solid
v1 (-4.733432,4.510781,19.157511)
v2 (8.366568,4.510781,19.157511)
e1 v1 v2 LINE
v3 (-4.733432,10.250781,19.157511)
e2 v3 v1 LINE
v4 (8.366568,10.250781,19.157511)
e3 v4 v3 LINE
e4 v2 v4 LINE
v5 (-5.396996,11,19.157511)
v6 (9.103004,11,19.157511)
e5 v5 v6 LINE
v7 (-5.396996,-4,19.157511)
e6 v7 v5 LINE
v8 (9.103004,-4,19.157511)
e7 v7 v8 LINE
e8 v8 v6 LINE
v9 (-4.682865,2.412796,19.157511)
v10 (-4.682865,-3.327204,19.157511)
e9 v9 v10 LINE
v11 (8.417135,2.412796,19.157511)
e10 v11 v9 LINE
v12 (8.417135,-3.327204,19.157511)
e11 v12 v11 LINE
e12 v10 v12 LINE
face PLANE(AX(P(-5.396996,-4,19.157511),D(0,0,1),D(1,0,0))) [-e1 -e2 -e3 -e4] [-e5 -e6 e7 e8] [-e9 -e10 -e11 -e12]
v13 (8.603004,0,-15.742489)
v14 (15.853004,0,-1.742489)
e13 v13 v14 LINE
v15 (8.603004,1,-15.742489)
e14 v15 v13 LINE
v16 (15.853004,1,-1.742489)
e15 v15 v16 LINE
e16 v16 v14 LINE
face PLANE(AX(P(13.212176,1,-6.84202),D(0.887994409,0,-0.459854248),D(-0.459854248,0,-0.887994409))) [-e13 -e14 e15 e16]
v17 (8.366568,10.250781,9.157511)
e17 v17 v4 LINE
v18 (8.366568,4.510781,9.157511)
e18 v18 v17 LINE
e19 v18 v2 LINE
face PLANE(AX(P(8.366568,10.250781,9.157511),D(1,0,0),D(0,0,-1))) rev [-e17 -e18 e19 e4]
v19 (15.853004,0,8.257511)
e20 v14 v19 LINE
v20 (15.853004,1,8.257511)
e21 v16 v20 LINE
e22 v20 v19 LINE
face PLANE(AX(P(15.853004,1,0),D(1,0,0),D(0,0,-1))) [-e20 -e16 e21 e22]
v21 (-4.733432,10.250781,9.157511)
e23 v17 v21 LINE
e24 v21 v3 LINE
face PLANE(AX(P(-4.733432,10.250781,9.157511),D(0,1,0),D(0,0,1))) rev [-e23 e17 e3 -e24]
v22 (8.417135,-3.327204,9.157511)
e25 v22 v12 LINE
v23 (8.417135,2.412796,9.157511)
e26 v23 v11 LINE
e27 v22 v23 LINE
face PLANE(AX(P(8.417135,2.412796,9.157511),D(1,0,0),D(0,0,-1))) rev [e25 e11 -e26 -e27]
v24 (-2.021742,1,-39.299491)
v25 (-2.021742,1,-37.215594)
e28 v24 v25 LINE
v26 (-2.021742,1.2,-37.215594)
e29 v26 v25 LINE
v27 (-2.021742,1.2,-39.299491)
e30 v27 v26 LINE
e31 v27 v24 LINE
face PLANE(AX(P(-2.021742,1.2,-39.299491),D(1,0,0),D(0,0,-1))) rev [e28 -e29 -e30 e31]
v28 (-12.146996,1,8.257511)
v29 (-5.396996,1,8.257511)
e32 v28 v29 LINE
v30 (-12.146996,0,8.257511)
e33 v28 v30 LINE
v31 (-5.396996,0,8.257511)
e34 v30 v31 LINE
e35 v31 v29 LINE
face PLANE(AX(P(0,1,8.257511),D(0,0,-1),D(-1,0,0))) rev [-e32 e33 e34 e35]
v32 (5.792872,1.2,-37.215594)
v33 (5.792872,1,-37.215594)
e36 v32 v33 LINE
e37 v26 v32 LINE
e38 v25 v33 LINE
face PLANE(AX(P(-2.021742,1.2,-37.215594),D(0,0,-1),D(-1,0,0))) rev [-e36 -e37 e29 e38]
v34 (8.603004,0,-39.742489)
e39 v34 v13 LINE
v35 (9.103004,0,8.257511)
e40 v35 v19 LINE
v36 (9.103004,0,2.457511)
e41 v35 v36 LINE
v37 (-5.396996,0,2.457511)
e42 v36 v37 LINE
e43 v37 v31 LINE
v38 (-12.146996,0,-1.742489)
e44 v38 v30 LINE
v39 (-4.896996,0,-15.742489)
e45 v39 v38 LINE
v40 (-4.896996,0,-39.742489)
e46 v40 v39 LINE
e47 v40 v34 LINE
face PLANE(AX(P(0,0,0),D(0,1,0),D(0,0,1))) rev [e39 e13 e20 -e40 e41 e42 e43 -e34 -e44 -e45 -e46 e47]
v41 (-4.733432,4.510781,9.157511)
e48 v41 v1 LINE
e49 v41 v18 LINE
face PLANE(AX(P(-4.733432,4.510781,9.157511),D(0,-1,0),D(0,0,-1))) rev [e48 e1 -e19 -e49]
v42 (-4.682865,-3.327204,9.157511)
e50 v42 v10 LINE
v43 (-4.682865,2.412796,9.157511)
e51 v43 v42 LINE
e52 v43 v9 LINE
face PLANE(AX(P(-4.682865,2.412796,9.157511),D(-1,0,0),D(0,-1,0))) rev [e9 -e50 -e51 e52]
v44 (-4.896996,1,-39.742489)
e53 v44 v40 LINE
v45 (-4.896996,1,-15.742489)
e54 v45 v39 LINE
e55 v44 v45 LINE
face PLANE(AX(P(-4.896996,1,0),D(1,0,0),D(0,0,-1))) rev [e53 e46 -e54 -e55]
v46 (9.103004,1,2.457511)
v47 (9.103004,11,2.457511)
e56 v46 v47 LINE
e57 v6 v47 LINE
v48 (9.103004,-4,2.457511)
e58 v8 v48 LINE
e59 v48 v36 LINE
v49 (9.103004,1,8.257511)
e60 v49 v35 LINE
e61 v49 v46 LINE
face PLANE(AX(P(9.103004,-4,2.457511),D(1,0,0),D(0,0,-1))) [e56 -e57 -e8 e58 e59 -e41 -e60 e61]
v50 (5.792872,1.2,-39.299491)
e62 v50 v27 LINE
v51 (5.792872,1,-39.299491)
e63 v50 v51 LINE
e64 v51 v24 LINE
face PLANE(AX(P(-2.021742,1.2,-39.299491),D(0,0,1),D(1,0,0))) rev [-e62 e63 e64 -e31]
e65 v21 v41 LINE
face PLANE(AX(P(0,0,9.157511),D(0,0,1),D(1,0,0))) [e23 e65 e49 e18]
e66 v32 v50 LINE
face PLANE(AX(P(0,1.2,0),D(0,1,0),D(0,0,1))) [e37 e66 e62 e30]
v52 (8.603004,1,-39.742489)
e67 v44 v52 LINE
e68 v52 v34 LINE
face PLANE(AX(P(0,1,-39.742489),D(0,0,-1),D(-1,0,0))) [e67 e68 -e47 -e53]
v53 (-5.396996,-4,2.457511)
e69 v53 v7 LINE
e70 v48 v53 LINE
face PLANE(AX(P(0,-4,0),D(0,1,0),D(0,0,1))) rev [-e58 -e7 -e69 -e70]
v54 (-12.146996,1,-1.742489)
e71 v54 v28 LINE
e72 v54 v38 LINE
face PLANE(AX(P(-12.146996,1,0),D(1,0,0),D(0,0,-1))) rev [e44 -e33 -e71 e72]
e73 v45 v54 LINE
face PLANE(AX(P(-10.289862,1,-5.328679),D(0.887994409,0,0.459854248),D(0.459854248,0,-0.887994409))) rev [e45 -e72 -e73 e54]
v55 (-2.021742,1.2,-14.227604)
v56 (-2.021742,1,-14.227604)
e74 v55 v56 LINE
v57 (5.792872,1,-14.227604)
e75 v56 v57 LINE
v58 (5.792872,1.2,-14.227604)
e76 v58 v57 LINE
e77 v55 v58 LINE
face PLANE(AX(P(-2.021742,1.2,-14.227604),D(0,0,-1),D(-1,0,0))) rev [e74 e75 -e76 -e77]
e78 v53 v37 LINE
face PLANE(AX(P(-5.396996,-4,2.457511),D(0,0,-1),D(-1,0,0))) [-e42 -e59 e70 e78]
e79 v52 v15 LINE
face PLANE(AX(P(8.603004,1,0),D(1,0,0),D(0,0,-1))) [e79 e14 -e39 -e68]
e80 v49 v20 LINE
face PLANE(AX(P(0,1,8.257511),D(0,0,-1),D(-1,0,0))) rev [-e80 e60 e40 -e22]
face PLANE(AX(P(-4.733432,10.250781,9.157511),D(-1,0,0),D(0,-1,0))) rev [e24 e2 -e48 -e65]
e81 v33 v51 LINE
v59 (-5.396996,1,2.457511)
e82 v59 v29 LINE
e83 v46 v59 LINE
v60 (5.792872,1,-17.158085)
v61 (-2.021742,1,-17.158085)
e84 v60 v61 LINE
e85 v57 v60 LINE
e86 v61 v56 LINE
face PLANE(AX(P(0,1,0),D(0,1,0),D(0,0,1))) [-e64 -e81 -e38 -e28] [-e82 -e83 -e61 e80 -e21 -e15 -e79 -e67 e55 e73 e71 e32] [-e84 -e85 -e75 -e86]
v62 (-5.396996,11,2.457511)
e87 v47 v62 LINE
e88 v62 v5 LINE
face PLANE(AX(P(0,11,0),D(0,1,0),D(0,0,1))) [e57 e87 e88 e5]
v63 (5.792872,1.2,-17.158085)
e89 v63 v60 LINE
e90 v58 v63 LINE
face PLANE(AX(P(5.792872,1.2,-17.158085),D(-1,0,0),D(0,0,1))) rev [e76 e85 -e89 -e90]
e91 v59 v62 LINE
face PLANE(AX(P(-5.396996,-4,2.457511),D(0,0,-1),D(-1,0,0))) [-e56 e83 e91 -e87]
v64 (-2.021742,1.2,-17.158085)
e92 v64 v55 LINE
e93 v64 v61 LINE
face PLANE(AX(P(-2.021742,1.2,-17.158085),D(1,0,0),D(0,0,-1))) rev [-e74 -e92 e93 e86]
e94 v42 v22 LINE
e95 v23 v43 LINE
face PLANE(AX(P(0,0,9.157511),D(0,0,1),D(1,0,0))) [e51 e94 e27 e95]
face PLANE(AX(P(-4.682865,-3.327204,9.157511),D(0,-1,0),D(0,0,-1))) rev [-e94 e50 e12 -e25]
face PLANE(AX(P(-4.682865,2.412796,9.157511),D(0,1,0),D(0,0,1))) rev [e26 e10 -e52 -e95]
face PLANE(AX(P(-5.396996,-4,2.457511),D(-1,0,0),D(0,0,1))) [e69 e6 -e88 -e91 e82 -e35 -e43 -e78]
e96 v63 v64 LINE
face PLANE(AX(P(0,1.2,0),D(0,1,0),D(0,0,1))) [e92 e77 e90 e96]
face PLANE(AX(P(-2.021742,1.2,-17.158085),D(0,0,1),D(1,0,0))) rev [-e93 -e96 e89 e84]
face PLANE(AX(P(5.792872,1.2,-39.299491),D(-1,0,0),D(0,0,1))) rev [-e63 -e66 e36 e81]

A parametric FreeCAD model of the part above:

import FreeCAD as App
import Part
import Sketcher

V = App.Vector

doc = App.newDocument("Part")
body = doc.addObject("PartDesign::Body", "Body")

# Sketch on XZ plane
sketch1 = body.newObject("Sketcher::SketchObject", "Sketch")
sketch1.AttachmentSupport = (doc.getObject("XZ_Plane"), [""])
sketch1.MapMode = "FlatFace"
sketch1.addGeometry([
    Part.LineSegment(V(16, -2, 0), V(9, -16, 0)),  # 0
    Part.LineSegment(V(9, -16, 0), V(9, -40, 0)),  # 1
    Part.LineSegment(V(9, -40, 0), V(-5, -40, 0)),  # 2
    Part.LineSegment(V(-5, -40, 0), V(-5, -16, 0)),  # 3
    Part.LineSegment(V(-5, -16, 0), V(-12, -2, 0)),  # 4
    Part.LineSegment(V(-12, -2, 0), V(-12, 8, 0)),  # 5
    Part.LineSegment(V(-12, 8, 0), V(16, 8, 0)),  # 6
    Part.LineSegment(V(16, 8, 0), V(16, -2, 0)),  # 7
], False)
sketch1.addConstraint([
    Sketcher.Constraint("Coincident", 0, 2, 1, 1),
    Sketcher.Constraint("Coincident", 1, 2, 2, 1),
    Sketcher.Constraint("Coincident", 2, 2, 3, 1),
    Sketcher.Constraint("Coincident", 3, 2, 4, 1),
    Sketcher.Constraint("Coincident", 4, 2, 5, 1),
    Sketcher.Constraint("Coincident", 5, 2, 6, 1),
    Sketcher.Constraint("Coincident", 6, 2, 7, 1),
    Sketcher.Constraint("Coincident", 7, 2, 0, 1),
    Sketcher.Constraint("Vertical", 1),
    Sketcher.Constraint("Horizontal", 2),
    Sketcher.Constraint("Vertical", 3),
    Sketcher.Constraint("Vertical", 5),
    Sketcher.Constraint("Horizontal", 6),
    Sketcher.Constraint("Vertical", 7),
    Sketcher.Constraint("Horizontal", 0, 2, 3, 2),
    Sketcher.Constraint("Horizontal", 4, 2, 7, 2),
    Sketcher.Constraint("Equal", 0, 4),
    Sketcher.Constraint("DistanceX", 6, 1, 6, 2, 28.0),
    Sketcher.Constraint("DistanceY", 1, 2, 1, 1, 24.0),
    Sketcher.Constraint("DistanceY", 5, 1, 5, 2, 10.0),
    Sketcher.Constraint("DistanceX", 2, 2, 2, 1, 13.5),
    Sketcher.Constraint("DistanceY", 3, 2, 4, 2, 14.0),
    Sketcher.Constraint("DistanceY", 0, 2, -1, 1, 15.742489),
    Sketcher.Constraint("DistanceX", -1, 1, 0, 2, 8.603004),
])
pad1 = body.newObject("PartDesign::Pad", "Pad")
pad1.Profile = sketch1
pad1.Length = 1
pad1.Reversed = True

# Sketch on XZ plane
sketch2 = body.newObject("Sketcher::SketchObject", "Sketch001")
sketch2.AttachmentSupport = (doc.getObject("XZ_Plane"), [""])
sketch2.MapMode = "FlatFace"
sketch2.AttachmentOffset = App.Placement(V(0, 0, -11), App.Rotation())
sketch2.addGeometry([
    Part.LineSegment(V(-5, 2, 0), V(-5, 19, 0)),
    Part.LineSegment(V(-5, 19, 0), V(9, 19, 0)),
    Part.LineSegment(V(9, 19, 0), V(9, 2, 0)),
    Part.LineSegment(V(9, 2, 0), V(-5, 2, 0)),
], False)
sketch2.addConstraint([
    Sketcher.Constraint("Coincident", 0, 2, 1, 1),
    Sketcher.Constraint("Coincident", 1, 2, 2, 1),
    Sketcher.Constraint("Coincident", 2, 2, 3, 1),
    Sketcher.Constraint("Coincident", 3, 2, 0, 1),
    Sketcher.Constraint("Vertical", 0),
    Sketcher.Constraint("Horizontal", 1),
    Sketcher.Constraint("Vertical", 2),
    Sketcher.Constraint("Horizontal", 3),
    Sketcher.Constraint("DistanceX", 1, 1, 1, 2, 14.5),
    Sketcher.Constraint("DistanceY", 0, 1, 0, 2, 16.7),
    Sketcher.Constraint("DistanceY", -1, 1, 0, 2, 19.157511),
    Sketcher.Constraint("DistanceX", 0, 2, -1, 1, 5.396996),
])
pad2 = body.newObject("PartDesign::Pad", "Pad001")
pad2.Profile = sketch2
pad2.Length = 15

# Sketch on XY plane
sketch3 = body.newObject("Sketcher::SketchObject", "Sketch002")
sketch3.AttachmentSupport = (doc.getObject("XY_Plane"), [""])
sketch3.MapMode = "FlatFace"
sketch3.AttachmentOffset = App.Placement(V(0, 0, 19.157511), App.Rotation())
sketch3.addGeometry([
    Part.LineSegment(V(-5, 10, 0), V(-5, 5, 0)),  # 0
    Part.LineSegment(V(-5, 5, 0), V(8, 5, 0)),  # 1
    Part.LineSegment(V(8, 5, 0), V(8, 10, 0)),  # 2
    Part.LineSegment(V(8, 10, 0), V(-5, 10, 0)),  # 3
    Part.LineSegment(V(-5, 2, 0), V(-5, -3, 0)),  # 4
    Part.LineSegment(V(-5, -3, 0), V(8, -3, 0)),  # 5
    Part.LineSegment(V(8, -3, 0), V(8, 2, 0)),  # 6
    Part.LineSegment(V(8, 2, 0), V(-5, 2, 0)),  # 7
], False)
sketch3.addConstraint([
    Sketcher.Constraint("Coincident", 0, 2, 1, 1),
    Sketcher.Constraint("Coincident", 1, 2, 2, 1),
    Sketcher.Constraint("Coincident", 2, 2, 3, 1),
    Sketcher.Constraint("Coincident", 3, 2, 0, 1),
    Sketcher.Constraint("Coincident", 4, 2, 5, 1),
    Sketcher.Constraint("Coincident", 5, 2, 6, 1),
    Sketcher.Constraint("Coincident", 6, 2, 7, 1),
    Sketcher.Constraint("Coincident", 7, 2, 4, 1),
    Sketcher.Constraint("Vertical", 0),
    Sketcher.Constraint("Horizontal", 1),
    Sketcher.Constraint("Vertical", 2),
    Sketcher.Constraint("Horizontal", 3),
    Sketcher.Constraint("Vertical", 4),
    Sketcher.Constraint("Horizontal", 5),
    Sketcher.Constraint("Vertical", 6),
    Sketcher.Constraint("Horizontal", 7),
    Sketcher.Constraint("Equal", 3, 5),
    Sketcher.Constraint("Equal", 2, 4),
    Sketcher.Constraint("DistanceX", 1, 1, 1, 2, 13.1),
    Sketcher.Constraint("DistanceY", 0, 2, 0, 1, 5.74),
    Sketcher.Constraint("DistanceY", -1, 1, 0, 2, 4.510781),
    Sketcher.Constraint("DistanceX", 0, 2, -1, 1, 4.733432),
    Sketcher.Constraint("DistanceX", 4, 2, -1, 1, 4.682865),
    Sketcher.Constraint("DistanceY", 4, 2, -1, 1, 3.327204),
])
pocket1 = body.newObject("PartDesign::Pocket", "Pocket")
pocket1.Profile = sketch3
pocket1.Length = 10

# Sketch on XZ plane
sketch4 = body.newObject("Sketcher::SketchObject", "Sketch003")
sketch4.AttachmentSupport = (doc.getObject("XZ_Plane"), [""])
sketch4.MapMode = "FlatFace"
sketch4.AttachmentOffset = App.Placement(V(0, 0, -1), App.Rotation())
sketch4.addGeometry([
    Part.LineSegment(V(-2, -17.2, 0), V(-2, -14.2, 0)),  # 0
    Part.LineSegment(V(-2, -14.2, 0), V(5.8, -14.2, 0)),  # 1
    Part.LineSegment(V(5.8, -14.2, 0), V(5.8, -17.2, 0)),  # 2
    Part.LineSegment(V(5.8, -17.2, 0), V(-2, -17.2, 0)),  # 3
    Part.LineSegment(V(-2, -39.3, 0), V(-2, -37.2, 0)),  # 4
    Part.LineSegment(V(-2, -37.2, 0), V(5.8, -37.2, 0)),  # 5
    Part.LineSegment(V(5.8, -37.2, 0), V(5.8, -39.3, 0)),  # 6
    Part.LineSegment(V(5.8, -39.3, 0), V(-2, -39.3, 0)),  # 7
], False)
sketch4.addConstraint([
    Sketcher.Constraint("Coincident", 0, 2, 1, 1),
    Sketcher.Constraint("Coincident", 1, 2, 2, 1),
    Sketcher.Constraint("Coincident", 2, 2, 3, 1),
    Sketcher.Constraint("Coincident", 3, 2, 0, 1),
    Sketcher.Constraint("Coincident", 4, 2, 5, 1),
    Sketcher.Constraint("Coincident", 5, 2, 6, 1),
    Sketcher.Constraint("Coincident", 6, 2, 7, 1),
    Sketcher.Constraint("Coincident", 7, 2, 4, 1),
    Sketcher.Constraint("Vertical", 0),
    Sketcher.Constraint("Horizontal", 1),
    Sketcher.Constraint("Vertical", 2),
    Sketcher.Constraint("Horizontal", 3),
    Sketcher.Constraint("Vertical", 4),
    Sketcher.Constraint("Horizontal", 5),
    Sketcher.Constraint("Vertical", 6),
    Sketcher.Constraint("Horizontal", 7),
    Sketcher.Constraint("Vertical", 3, 2, 4, 2),
    Sketcher.Constraint("Vertical", 2, 2, 5, 2),
    Sketcher.Constraint("DistanceY", 0, 1, 0, 2, 2.93048),
    Sketcher.Constraint("DistanceX", 1, 1, 1, 2, 7.814614),
    Sketcher.Constraint("DistanceY", 4, 1, 4, 2, 2.083897),
    Sketcher.Constraint("DistanceX", 0, 2, -1, 1, 2.021742),
    Sketcher.Constraint("DistanceY", 6, 2, -1, 1, 39.299491),
    Sketcher.Constraint("DistanceY", 4, 2, 3, 2, 20.05751),
])
pad3 = body.newObject("PartDesign::Pad", "Pad002")
pad3.Profile = sketch4
pad3.Length = 0.2
pad3.Reversed = True

doc.recompute()
